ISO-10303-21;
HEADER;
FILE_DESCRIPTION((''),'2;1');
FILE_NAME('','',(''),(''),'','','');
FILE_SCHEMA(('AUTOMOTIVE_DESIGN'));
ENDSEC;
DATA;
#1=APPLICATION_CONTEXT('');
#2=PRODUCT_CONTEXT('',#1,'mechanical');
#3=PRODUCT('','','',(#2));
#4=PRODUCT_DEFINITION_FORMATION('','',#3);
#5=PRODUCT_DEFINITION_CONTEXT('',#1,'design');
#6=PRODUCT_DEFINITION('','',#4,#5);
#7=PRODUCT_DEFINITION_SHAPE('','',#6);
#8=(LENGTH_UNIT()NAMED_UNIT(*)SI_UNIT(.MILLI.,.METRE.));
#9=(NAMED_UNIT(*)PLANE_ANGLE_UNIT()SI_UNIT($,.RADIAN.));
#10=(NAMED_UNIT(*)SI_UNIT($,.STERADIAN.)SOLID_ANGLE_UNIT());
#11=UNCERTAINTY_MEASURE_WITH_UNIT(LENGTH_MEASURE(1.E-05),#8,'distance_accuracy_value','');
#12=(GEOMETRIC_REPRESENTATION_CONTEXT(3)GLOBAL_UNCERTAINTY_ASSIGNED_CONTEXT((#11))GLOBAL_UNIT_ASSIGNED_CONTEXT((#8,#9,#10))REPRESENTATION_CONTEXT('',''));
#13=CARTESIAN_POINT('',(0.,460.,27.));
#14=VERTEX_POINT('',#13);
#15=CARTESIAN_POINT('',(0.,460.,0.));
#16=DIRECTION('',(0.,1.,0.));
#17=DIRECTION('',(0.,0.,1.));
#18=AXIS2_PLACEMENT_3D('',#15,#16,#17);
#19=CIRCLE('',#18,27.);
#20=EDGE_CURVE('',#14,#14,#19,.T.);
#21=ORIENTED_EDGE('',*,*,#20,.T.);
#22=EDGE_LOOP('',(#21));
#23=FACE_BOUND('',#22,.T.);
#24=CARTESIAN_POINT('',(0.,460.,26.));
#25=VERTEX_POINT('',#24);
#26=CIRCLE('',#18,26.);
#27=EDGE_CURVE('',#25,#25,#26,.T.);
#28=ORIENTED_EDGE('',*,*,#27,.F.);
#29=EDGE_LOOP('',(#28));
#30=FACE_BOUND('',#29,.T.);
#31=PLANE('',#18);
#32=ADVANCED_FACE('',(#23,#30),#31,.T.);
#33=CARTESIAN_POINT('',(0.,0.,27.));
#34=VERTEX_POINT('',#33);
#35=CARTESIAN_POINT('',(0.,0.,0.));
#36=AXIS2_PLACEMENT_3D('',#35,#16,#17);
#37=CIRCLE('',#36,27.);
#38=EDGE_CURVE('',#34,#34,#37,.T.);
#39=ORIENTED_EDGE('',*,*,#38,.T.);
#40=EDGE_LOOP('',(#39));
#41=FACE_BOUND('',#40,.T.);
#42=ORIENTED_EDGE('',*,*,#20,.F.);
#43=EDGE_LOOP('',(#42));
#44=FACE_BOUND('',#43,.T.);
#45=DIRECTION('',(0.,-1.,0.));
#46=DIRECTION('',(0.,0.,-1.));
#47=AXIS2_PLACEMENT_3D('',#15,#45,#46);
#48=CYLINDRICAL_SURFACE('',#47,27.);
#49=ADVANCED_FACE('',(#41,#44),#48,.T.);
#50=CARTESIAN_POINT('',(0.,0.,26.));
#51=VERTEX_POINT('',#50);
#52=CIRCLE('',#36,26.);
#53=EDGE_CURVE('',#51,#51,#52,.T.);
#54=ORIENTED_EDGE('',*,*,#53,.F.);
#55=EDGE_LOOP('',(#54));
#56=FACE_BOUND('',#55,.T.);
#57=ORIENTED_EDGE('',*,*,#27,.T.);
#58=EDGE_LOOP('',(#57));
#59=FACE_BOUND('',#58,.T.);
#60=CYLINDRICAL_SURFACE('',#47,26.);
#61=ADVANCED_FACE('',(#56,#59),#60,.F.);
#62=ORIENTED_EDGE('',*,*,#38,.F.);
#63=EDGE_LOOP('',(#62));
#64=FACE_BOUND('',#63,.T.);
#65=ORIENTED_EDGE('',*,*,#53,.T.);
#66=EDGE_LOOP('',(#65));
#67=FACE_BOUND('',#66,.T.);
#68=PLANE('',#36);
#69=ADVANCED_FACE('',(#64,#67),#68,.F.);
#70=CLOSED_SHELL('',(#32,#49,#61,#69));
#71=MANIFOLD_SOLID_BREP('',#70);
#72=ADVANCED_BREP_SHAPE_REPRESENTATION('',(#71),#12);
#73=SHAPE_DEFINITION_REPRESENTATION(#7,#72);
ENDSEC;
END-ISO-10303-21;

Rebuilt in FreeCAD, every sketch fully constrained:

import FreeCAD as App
import Part
import Sketcher


def faces_at(feature, points):
    """Names of the faces that lie closest to the given points."""
    faces = feature.Shape.Faces
    near = lambda p: min(range(len(faces)), key=lambda i: faces[i].distToShape(Part.Vertex(*p))[0])
    return sorted({f"Face{near(p) + 1}" for p in points})

doc = App.newDocument("Part")
params = doc.addObject("Spreadsheet::Sheet", "Params")
for row, (alias, value) in enumerate([
    ("sketch1_diameter", "54 mm"),
    ("pad1_length", "460 mm"),
    ("thickness_wall", "1 mm"),
], start=1):
    params.set(f"A{row}", alias)
    params.set(f"B{row}", "=" + value)
    params.setAlias(f"B{row}", alias)

body = doc.addObject("PartDesign::Body", "Body")

# Sketch on XZ plane
sketch1 = body.newObject("Sketcher::SketchObject", "Sketch")
sketch1.AttachmentSupport = (doc.getObject("XZ_Plane"), [""])
sketch1.MapMode = "FlatFace"
sketch1.addGeometry(Part.Circle(App.Vector(0, 0, 0), App.Vector(0, 0, 1), 27), False)
sketch1.addConstraint(Sketcher.Constraint("Coincident", 0, 3, -1, 1))
sketch1.addConstraint(Sketcher.Constraint("Diameter", 0, 54.0))
sketch1.setExpression("Constraints[1]", "Params.sketch1_diameter")
pad1 = body.newObject("PartDesign::Pad", "Pad")
pad1.Profile = sketch1
pad1.setExpression("Length", "Params.pad1_length")
pad1.Reversed = True
doc.recompute()

thickness = body.newObject("PartDesign::Thickness", "Thickness")
thickness.Base = (pad1, faces_at(pad1, [(0, 460, 0), (0, 0, 0)]))
thickness.setExpression("Value", "Params.thickness_wall")
thickness.Reversed = True
thickness.Join = "Intersection"

doc.recompute()
